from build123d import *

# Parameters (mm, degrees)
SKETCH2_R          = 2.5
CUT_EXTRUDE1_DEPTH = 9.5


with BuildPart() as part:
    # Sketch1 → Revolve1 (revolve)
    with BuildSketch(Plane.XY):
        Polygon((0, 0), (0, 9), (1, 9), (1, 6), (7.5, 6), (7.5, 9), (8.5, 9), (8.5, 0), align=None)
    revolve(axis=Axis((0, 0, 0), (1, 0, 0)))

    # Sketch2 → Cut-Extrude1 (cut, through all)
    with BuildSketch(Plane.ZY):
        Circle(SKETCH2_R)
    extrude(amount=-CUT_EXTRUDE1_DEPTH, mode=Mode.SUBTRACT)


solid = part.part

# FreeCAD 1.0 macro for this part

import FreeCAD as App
import Part
import Sketcher


def add_polygon(sketch, points):
    """Adds a closed chain of lines whose ends are joined by coincident constraints."""
    first, n = sketch.GeometryCount, len(points)
    for a, b in zip(points, points[1:] + points[:1]):
        sketch.addGeometry(Part.LineSegment(App.Vector(*a, 0), App.Vector(*b, 0)), False)
    for i in range(n):
        sketch.addConstraint(Sketcher.Constraint("Coincident", first + i, 2, first + (i + 1) % n, 1))

doc = App.newDocument("Part")
params = doc.addObject("Spreadsheet::Sheet", "Params")
for row, (alias, value) in enumerate([
    ("sketch1_width", "1 mm"),
    ("sketch1_height", "9 mm"),
    ("sketch1_height2", "3 mm"),
    ("sketch1_width2", "8.5 mm"),
    ("revolution_angle", "360 deg"),
    ("sketch2_diameter", "5 mm"),
], start=1):
    params.set(f"A{row}", alias)
    params.set(f"B{row}", "=" + value)
    params.setAlias(f"B{row}", alias)

body = doc.addObject("PartDesign::Body", "Body")

sketch1 = body.newObject("Sketcher::SketchObject", "Sketch")
sketch1.AttachmentSupport = (doc.getObject("XY_Plane"), [""])
sketch1.MapMode = "FlatFace"
add_polygon(sketch1, [(0, 9), (0, 0), (8.5, 0), (8.5, 9), (7.5, 9), (7.5, 6), (1, 6), (1, 9)])
sketch1.addConstraint(Sketcher.Constraint("Vertical", 0))
sketch1.addConstraint(Sketcher.Constraint("Horizontal", 1))
sketch1.addConstraint(Sketcher.Constraint("Vertical", 2))
sketch1.addConstraint(Sketcher.Constraint("Horizontal", 3))
sketch1.addConstraint(Sketcher.Constraint("Vertical", 4))
sketch1.addConstraint(Sketcher.Constraint("Horizontal", 5))
sketch1.addConstraint(Sketcher.Constraint("Vertical", 6))
sketch1.addConstraint(Sketcher.Constraint("Horizontal", 7))
sketch1.addConstraint(Sketcher.Constraint("Coincident", 0, 2, -1, 1))
sketch1.addConstraint(Sketcher.Constraint("Horizontal", 3, 2, 6, 2))
sketch1.addConstraint(Sketcher.Constraint("Equal", 3, 7))
sketch1.addConstraint(Sketcher.Constraint("DistanceX", 3, 2, 3, 1, 1.0))
sketch1.addConstraint(Sketcher.Constraint("DistanceY", 0, 2, 0, 1, 9.0))
sketch1.addConstraint(Sketcher.Constraint("DistanceY", 4, 2, 4, 1, 3.0))
sketch1.addConstraint(Sketcher.Constraint("DistanceX", 1, 1, 1, 2, 8.5))
sketch1.setExpression("Constraints[19]", "Params.sketch1_width")
sketch1.setExpression("Constraints[20]", "Params.sketch1_height")
sketch1.setExpression("Constraints[21]", "Params.sketch1_height2")
sketch1.setExpression("Constraints[22]", "Params.sketch1_width2")
revolution = body.newObject("PartDesign::Revolution", "Revolution")
revolution.Profile = sketch1
revolution.ReferenceAxis = (sketch1, ["H_Axis"])
revolution.setExpression("Angle", "Params.revolution_angle")

sketch2 = body.newObject("Sketcher::SketchObject", "Sketch001")
sketch2.AttachmentSupport = (doc.getObject("YZ_Plane"), [""])
sketch2.MapMode = "FlatFace"
sketch2.addGeometry(Part.Circle(App.Vector(0, 0, 0), App.Vector(0, 0, 1), 2.5), False)
sketch2.addConstraint(Sketcher.Constraint("Coincident", 0, 3, -1, 1))
sketch2.addConstraint(Sketcher.Constraint("Diameter", 0, 5.0))
sketch2.setExpression("Constraints[1]", "Params.sketch2_diameter")
pocket1 = body.newObject("PartDesign::Pocket", "Pocket")
pocket1.Profile = sketch2
pocket1.Type = "ThroughAll"
pocket1.Reversed = True

doc.recompute()
